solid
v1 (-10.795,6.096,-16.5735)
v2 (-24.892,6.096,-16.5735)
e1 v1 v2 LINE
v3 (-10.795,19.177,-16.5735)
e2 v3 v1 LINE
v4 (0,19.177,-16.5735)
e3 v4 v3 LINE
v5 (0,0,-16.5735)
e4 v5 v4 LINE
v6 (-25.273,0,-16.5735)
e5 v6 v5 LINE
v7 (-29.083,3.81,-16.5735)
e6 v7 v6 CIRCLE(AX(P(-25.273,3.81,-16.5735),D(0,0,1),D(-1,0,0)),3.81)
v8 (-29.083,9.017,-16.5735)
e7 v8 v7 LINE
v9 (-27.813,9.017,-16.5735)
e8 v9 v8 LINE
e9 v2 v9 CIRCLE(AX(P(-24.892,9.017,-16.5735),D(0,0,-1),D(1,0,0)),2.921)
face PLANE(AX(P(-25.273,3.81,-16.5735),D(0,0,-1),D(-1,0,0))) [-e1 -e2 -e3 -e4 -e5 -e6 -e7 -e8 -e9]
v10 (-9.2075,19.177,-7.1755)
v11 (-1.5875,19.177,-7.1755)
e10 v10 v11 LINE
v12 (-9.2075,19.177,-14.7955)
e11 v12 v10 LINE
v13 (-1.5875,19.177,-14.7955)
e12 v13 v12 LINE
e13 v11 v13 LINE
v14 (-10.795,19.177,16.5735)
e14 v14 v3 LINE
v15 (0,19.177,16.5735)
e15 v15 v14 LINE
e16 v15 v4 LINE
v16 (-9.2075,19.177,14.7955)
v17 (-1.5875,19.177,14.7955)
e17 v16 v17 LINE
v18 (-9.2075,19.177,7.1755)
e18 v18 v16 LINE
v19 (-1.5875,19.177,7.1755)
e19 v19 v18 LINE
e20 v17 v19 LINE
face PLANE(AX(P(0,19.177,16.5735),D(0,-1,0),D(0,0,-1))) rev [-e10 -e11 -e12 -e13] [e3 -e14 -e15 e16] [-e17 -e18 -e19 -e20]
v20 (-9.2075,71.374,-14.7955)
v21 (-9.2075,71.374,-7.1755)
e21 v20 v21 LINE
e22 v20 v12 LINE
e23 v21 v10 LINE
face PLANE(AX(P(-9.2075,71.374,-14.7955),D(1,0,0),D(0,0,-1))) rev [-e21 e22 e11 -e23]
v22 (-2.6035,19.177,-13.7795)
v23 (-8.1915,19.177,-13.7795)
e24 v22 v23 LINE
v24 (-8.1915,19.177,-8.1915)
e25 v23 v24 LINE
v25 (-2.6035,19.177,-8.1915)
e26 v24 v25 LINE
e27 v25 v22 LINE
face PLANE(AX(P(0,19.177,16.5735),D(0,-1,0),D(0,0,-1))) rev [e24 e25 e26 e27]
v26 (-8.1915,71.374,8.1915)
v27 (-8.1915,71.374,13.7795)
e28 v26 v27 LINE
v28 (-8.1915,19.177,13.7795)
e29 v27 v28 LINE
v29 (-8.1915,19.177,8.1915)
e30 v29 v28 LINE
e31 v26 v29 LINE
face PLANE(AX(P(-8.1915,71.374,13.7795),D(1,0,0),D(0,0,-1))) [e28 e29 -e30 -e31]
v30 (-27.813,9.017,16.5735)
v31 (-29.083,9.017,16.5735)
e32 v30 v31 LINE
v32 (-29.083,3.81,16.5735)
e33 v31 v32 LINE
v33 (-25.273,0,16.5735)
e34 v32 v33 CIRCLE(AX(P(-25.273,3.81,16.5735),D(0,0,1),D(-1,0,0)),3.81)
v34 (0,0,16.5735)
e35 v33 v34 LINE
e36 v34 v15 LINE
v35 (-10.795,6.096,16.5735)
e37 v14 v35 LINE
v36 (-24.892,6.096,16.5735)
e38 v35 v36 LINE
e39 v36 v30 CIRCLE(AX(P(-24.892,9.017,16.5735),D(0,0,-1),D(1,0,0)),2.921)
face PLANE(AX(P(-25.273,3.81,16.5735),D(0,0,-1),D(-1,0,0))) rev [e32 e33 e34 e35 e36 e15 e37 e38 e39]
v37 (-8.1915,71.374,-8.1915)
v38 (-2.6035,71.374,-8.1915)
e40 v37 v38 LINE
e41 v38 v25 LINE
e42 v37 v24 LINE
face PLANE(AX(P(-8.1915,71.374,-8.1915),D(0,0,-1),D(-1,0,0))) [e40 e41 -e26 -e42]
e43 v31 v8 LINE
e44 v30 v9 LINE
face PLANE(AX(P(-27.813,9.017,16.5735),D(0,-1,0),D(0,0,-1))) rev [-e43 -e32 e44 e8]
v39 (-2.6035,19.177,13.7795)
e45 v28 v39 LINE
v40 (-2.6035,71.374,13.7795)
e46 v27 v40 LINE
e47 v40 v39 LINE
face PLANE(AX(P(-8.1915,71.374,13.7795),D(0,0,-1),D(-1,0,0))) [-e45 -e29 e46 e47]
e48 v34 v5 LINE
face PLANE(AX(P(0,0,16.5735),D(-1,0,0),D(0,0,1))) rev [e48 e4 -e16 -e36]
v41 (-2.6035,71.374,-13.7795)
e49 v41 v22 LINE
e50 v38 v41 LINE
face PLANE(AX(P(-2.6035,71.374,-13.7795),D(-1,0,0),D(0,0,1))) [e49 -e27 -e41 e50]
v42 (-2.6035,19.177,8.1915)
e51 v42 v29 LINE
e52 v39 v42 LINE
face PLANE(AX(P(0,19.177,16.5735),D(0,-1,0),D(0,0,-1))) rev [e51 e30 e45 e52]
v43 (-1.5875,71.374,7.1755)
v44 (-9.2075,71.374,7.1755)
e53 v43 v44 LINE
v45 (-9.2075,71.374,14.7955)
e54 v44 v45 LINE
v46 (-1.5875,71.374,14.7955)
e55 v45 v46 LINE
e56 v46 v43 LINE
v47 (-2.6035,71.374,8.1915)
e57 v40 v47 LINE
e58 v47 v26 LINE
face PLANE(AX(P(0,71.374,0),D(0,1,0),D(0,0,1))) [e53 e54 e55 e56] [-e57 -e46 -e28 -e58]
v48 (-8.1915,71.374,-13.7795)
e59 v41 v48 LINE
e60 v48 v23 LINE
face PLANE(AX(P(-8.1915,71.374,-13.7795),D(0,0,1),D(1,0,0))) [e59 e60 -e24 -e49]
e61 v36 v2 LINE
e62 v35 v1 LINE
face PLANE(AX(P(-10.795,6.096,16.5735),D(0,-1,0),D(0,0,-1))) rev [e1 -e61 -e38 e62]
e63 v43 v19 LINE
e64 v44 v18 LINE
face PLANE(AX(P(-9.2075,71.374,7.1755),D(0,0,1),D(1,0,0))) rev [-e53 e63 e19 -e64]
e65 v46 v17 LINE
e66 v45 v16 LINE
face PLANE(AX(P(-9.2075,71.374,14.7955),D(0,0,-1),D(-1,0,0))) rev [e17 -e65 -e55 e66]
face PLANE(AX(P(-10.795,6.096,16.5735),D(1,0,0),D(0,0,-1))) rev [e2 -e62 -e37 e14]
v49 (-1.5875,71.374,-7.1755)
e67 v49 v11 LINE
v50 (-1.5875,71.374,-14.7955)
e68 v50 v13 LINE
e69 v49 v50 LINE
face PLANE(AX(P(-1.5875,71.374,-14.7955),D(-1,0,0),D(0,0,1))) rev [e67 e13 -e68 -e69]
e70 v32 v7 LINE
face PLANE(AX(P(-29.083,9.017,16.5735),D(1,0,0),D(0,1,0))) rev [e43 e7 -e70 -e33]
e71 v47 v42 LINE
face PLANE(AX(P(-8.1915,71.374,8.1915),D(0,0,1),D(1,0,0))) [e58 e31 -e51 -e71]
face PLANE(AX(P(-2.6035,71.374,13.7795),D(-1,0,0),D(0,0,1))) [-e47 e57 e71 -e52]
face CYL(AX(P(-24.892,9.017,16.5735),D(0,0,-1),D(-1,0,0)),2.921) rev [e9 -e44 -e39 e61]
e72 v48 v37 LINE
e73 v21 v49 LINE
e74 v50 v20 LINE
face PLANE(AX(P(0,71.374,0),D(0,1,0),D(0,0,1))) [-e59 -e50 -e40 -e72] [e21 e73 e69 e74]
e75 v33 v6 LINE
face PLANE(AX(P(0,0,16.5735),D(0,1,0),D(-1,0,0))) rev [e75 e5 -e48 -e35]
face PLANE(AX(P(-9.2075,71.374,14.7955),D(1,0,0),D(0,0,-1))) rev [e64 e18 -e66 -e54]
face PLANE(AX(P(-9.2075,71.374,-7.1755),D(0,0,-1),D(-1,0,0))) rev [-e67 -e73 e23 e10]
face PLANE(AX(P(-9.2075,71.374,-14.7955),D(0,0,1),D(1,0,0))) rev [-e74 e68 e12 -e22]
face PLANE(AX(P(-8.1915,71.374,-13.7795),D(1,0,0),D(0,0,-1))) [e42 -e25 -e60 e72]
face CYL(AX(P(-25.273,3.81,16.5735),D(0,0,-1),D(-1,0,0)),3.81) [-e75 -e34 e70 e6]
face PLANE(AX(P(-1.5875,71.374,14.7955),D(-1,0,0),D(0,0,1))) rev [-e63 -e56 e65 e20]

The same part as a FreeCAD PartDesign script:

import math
import FreeCAD as App
import Part
import Sketcher
Q = App.Units.Quantity

doc = App.newDocument("Part")
params = doc.addObject("Spreadsheet::Sheet", "Params")
for row, (alias, value) in enumerate([
    ("sketch1_radius", "0.15 in"),
    ("sketch1_radius2", "0.115 in"),
    ("sketch1_width", "0.05 in"),
    ("sketch1_width2", "0.425 in"),
    ("sketch1_width3", "0.555 in"),
    ("pad1_length", "1.305 in"),
    ("sketch2_width", "0.3 in"),
    ("sketch2_width2", "0.22 in"),
    ("pad2_length", "2.055 in"),
], start=1):
    params.set(f"A{row}", alias)
    params.set(f"B{row}", "=" + value)
    params.setAlias(f"B{row}", alias)

body = doc.addObject("PartDesign::Body", "Body")

# Sketch on XY plane
sketch1 = body.newObject("Sketcher::SketchObject", "Sketch")
sketch1.AttachmentSupport = (doc.getObject("XY_Plane"), [""])
sketch1.MapMode = "FlatFace"
sketch1.addGeometry([
    Part.LineSegment(App.Vector(0, 0, 0), App.Vector(0, 19.2, 0)),  # 0
    Part.LineSegment(App.Vector(0, 19.2, 0), App.Vector(-10.8, 19.2, 0)),  # 1
    Part.LineSegment(App.Vector(-10.8, 19.2, 0), App.Vector(-10.8, 6.1, 0)),  # 2
    Part.LineSegment(App.Vector(-10.8, 6.1, 0), App.Vector(-24.9, 6.1, 0)),  # 3
    Part.ArcOfCircle(Part.Circle(App.Vector(-24.9, 9, 0), App.Vector(0, 0, 1), 2.9), math.radians(180), math.radians(270)),  # 4
    Part.LineSegment(App.Vector(-27.8, 9, 0), App.Vector(-29.1, 9, 0)),  # 5
    Part.LineSegment(App.Vector(-29.1, 9, 0), App.Vector(-29.1, 3.8, 0)),  # 6
    Part.ArcOfCircle(Part.Circle(App.Vector(-25.3, 3.8, 0), App.Vector(0, 0, 1), 3.8), math.radians(-180), math.radians(-90)),  # 7
    Part.LineSegment(App.Vector(-25.3, 0, 0), App.Vector(0, 0, 0)),  # 8
], False)
sketch1.addConstraint([
    Sketcher.Constraint("Coincident", 0, 2, 1, 1),
    Sketcher.Constraint("Coincident", 1, 2, 2, 1),
    Sketcher.Constraint("Coincident", 2, 2, 3, 1),
    Sketcher.Constraint("Tangent", 3, 2, 4, 2),
    Sketcher.Constraint("Coincident", 4, 1, 5, 1),
    Sketcher.Constraint("Coincident", 5, 2, 6, 1),
    Sketcher.Constraint("Tangent", 6, 2, 7, 1),
    Sketcher.Constraint("Tangent", 7, 2, 8, 1),
    Sketcher.Constraint("Coincident", 8, 2, 0, 1),
    Sketcher.Constraint("Vertical", 0),
    Sketcher.Constraint("Horizontal", 1),
    Sketcher.Constraint("Vertical", 2),
    Sketcher.Constraint("Horizontal", 3),
    Sketcher.Constraint("Horizontal", 5),
    Sketcher.Constraint("Vertical", 6),
    Sketcher.Constraint("Horizontal", 8),
    Sketcher.Constraint("Coincident", 8, 2, -1, 1),
    Sketcher.Constraint("Radius", 7, Q("0.15 in")),
    Sketcher.Constraint("Radius", 4, Q("0.115 in")),
    Sketcher.Constraint("DistanceX", 5, 2, 5, 1, Q("0.05 in")),
    Sketcher.Constraint("DistanceY", 4, 3, 0, 2, Q("0.4 in")),
    Sketcher.Constraint("DistanceY", 4, 1, 1, 2, Q("0.4 in")),
    Sketcher.Constraint("DistanceX", 1, 2, 1, 1, Q("0.425 in")),
    Sketcher.Constraint("DistanceX", 3, 2, 3, 1, Q("0.555 in")),
    Sketcher.Constraint("DistanceY", 0, 1, 0, 2, Q("0.755 in")),
])
sketch1.setExpression("Constraints[17]", "Params.sketch1_radius")
sketch1.setExpression("Constraints[18]", "Params.sketch1_radius2")
sketch1.setExpression("Constraints[19]", "Params.sketch1_width")
sketch1.setExpression("Constraints[22]", "Params.sketch1_width2")
sketch1.setExpression("Constraints[23]", "Params.sketch1_width3")
pad1 = body.newObject("PartDesign::Pad", "Pad")
pad1.Profile = sketch1
pad1.setExpression("Length", "Params.pad1_length")
pad1.Midplane = True

# Sketch on XZ plane
sketch2 = body.newObject("Sketcher::SketchObject", "Sketch001")
sketch2.AttachmentSupport = (doc.getObject("XZ_Plane"), [""])
sketch2.MapMode = "FlatFace"
sketch2.AttachmentOffset = App.Placement(App.Vector(0, 0, -0.755 * 25.4), App.Rotation())
sketch2.addGeometry([
    Part.LineSegment(App.Vector(-9, -15, 0), App.Vector(-9, -7, 0)),  # 0
    Part.LineSegment(App.Vector(-9, -7, 0), App.Vector(-2, -7, 0)),  # 1
    Part.LineSegment(App.Vector(-2, -7, 0), App.Vector(-2, -15, 0)),  # 2
    Part.LineSegment(App.Vector(-2, -15, 0), App.Vector(-9, -15, 0)),  # 3
    Part.LineSegment(App.Vector(-3, -8, 0), App.Vector(-8, -8, 0)),  # 4
    Part.LineSegment(App.Vector(-8, -8, 0), App.Vector(-8, -14, 0)),  # 5
    Part.LineSegment(App.Vector(-8, -14, 0), App.Vector(-3, -14, 0)),  # 6
    Part.LineSegment(App.Vector(-3, -14, 0), App.Vector(-3, -8, 0)),  # 7
    Part.LineSegment(App.Vector(-9, 7, 0), App.Vector(-9, 15, 0)),  # 8
    Part.LineSegment(App.Vector(-9, 15, 0), App.Vector(-2, 15, 0)),  # 9
    Part.LineSegment(App.Vector(-2, 15, 0), App.Vector(-2, 7, 0)),  # 10
    Part.LineSegment(App.Vector(-2, 7, 0), App.Vector(-9, 7, 0)),  # 11
    Part.LineSegment(App.Vector(-3, 14, 0), App.Vector(-8, 14, 0)),  # 12
    Part.LineSegment(App.Vector(-8, 14, 0), App.Vector(-8, 8, 0)),  # 13
    Part.LineSegment(App.Vector(-8, 8, 0), App.Vector(-3, 8, 0)),  # 14
    Part.LineSegment(App.Vector(-3, 8, 0), App.Vector(-3, 14, 0)),  # 15
], False)
sketch2.addConstraint([
    Sketcher.Constraint("Coincident", 0, 2, 1, 1),
    Sketcher.Constraint("Coincident", 1, 2, 2, 1),
    Sketcher.Constraint("Coincident", 2, 2, 3, 1),
    Sketcher.Constraint("Coincident", 3, 2, 0, 1),
    Sketcher.Constraint("Coincident", 4, 2, 5, 1),
    Sketcher.Constraint("Coincident", 5, 2, 6, 1),
    Sketcher.Constraint("Coincident", 6, 2, 7, 1),
    Sketcher.Constraint("Coincident", 7, 2, 4, 1),
    Sketcher.Constraint("Coincident", 8, 2, 9, 1),
    Sketcher.Constraint("Coincident", 9, 2, 10, 1),
    Sketcher.Constraint("Coincident", 10, 2, 11, 1),
    Sketcher.Constraint("Coincident", 11, 2, 8, 1),
    Sketcher.Constraint("Coincident", 12, 2, 13, 1),
    Sketcher.Constraint("Coincident", 13, 2, 14, 1),
    Sketcher.Constraint("Coincident", 14, 2, 15, 1),
    Sketcher.Constraint("Coincident", 15, 2, 12, 1),
    Sketcher.Constraint("Vertical", 0),
    Sketcher.Constraint("Horizontal", 1),
    Sketcher.Constraint("Vertical", 2),
    Sketcher.Constraint("Horizontal", 3),
    Sketcher.Constraint("Horizontal", 4),
    Sketcher.Constraint("Vertical", 5),
    Sketcher.Constraint("Horizontal", 6),
    Sketcher.Constraint("Vertical", 7),
    Sketcher.Constraint("Vertical", 8),
    Sketcher.Constraint("Horizontal", 9),
    Sketcher.Constraint("Vertical", 10),
    Sketcher.Constraint("Horizontal", 11),
    Sketcher.Constraint("Horizontal", 12),
    Sketcher.Constraint("Vertical", 13),
    Sketcher.Constraint("Horizontal", 14),
    Sketcher.Constraint("Vertical", 15),
    Sketcher.Constraint("Symmetric", 3, 2, 8, 2, -1),
    Sketcher.Constraint("Symmetric", 1, 2, 10, 2, -1),
    Sketcher.Constraint("Symmetric", 5, 2, 12, 2, -1),
    Sketcher.Constraint("Symmetric", 7, 2, 14, 2, -1),
    Sketcher.Constraint("Equal", 11, 0),
    Sketcher.Constraint("Equal", 14, 5),
    Sketcher.Constraint("DistanceX", 1, 1, 1, 2, Q("0.3 in")),
    Sketcher.Constraint("DistanceX", 4, 2, 4, 1, Q("0.22 in")),
    Sketcher.Constraint("DistanceX", 0, 2, 4, 2, Q("0.04 in")),
    Sketcher.Constraint("DistanceY", 4, 2, 0, 2, Q("0.04 in")),
    Sketcher.Constraint("DistanceX", 1, 2, -1, 1, Q("0.0625 in")),
    Sketcher.Constraint("DistanceY", 0, 2, 8, 2, Q("0.865 in")),
])
sketch2.setExpression("Constraints[38]", "Params.sketch2_width")
sketch2.setExpression("Constraints[39]", "Params.sketch2_width2")
pad2 = body.newObject("PartDesign::Pad", "Pad001")
pad2.Profile = sketch2
pad2.setExpression("Length", "Params.pad2_length")
pad2.Reversed = True

doc.recompute()
